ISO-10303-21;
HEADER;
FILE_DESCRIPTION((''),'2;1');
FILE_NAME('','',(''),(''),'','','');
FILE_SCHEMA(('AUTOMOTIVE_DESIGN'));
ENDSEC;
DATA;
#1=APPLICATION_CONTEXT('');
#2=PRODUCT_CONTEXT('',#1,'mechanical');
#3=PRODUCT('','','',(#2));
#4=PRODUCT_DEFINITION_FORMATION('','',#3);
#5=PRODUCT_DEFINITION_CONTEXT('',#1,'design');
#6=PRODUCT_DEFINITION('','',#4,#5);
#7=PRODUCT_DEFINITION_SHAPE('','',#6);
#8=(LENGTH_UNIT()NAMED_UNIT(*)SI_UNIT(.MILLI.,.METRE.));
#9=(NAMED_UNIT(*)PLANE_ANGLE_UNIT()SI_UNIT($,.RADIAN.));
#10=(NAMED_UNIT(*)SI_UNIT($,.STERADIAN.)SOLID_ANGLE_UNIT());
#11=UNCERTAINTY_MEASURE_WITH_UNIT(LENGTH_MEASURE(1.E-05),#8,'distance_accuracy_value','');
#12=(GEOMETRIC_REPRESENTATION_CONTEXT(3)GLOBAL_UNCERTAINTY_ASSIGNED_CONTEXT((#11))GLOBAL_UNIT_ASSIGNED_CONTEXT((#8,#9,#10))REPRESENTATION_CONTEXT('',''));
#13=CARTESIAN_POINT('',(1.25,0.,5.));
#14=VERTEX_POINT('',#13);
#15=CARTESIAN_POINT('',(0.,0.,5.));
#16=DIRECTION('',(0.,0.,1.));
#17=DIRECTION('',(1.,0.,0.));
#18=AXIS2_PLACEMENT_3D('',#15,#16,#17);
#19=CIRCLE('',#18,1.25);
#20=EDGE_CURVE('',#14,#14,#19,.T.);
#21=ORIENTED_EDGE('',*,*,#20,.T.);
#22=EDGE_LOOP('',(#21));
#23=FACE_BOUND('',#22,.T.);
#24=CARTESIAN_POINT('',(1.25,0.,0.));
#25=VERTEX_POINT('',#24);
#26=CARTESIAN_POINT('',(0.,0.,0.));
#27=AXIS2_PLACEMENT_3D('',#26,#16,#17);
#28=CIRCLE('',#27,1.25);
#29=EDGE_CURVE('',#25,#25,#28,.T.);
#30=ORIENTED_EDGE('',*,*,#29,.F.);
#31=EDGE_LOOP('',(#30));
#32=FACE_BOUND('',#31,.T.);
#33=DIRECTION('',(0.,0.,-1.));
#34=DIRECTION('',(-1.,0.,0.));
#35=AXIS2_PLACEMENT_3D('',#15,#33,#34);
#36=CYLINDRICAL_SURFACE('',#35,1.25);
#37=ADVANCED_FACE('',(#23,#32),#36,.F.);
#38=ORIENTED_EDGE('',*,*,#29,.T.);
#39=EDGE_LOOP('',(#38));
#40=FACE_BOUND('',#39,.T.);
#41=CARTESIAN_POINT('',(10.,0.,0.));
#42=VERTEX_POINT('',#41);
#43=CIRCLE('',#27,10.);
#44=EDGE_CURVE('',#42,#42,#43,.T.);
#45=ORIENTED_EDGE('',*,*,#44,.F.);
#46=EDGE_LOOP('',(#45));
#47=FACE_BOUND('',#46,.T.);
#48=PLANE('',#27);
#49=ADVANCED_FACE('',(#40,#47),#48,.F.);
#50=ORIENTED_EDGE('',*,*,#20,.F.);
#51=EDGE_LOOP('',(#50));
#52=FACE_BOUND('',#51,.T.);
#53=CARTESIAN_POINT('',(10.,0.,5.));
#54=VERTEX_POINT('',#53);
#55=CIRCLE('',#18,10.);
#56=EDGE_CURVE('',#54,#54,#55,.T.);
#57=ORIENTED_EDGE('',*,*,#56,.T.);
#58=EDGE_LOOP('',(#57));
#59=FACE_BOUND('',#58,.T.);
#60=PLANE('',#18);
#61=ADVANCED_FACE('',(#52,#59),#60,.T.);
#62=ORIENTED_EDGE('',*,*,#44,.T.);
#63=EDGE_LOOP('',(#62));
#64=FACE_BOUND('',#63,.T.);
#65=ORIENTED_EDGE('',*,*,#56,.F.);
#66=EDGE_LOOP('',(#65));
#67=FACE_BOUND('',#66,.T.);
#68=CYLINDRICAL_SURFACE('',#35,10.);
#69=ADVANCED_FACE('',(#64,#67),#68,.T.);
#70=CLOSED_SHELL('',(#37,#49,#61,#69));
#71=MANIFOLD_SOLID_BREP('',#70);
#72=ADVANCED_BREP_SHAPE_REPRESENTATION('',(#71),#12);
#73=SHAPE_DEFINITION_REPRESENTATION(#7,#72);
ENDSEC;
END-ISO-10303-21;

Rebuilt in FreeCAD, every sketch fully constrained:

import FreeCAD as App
import Part
import Sketcher

V = App.Vector

doc = App.newDocument("Part")
body = doc.addObject("PartDesign::Body", "Body")

# Sketch on XY plane
sketch1 = body.newObject("Sketcher::SketchObject", "Sketch")
sketch1.AttachmentSupport = (doc.getObject("XY_Plane"), [""])
sketch1.MapMode = "FlatFace"
sketch1.addGeometry(Part.Circle(V(0, 0, 0), V(0, 0, 1), 10), False)
sketch1.addGeometry(Part.Circle(V(0, 0, 0), V(0, 0, 1), 1.2), False)
sketch1.addConstraint(Sketcher.Constraint("Coincident", 0, 3, -1, 1))
sketch1.addConstraint(Sketcher.Constraint("Coincident", 1, 3, -1, 1))
sketch1.addConstraint(Sketcher.Constraint("Diameter", 0, 20.0))
sketch1.addConstraint(Sketcher.Constraint("Diameter", 1, 2.5))
pad1 = body.newObject("PartDesign::Pad", "Pad")
pad1.Profile = sketch1
pad1.Length = 5

doc.recompute()
